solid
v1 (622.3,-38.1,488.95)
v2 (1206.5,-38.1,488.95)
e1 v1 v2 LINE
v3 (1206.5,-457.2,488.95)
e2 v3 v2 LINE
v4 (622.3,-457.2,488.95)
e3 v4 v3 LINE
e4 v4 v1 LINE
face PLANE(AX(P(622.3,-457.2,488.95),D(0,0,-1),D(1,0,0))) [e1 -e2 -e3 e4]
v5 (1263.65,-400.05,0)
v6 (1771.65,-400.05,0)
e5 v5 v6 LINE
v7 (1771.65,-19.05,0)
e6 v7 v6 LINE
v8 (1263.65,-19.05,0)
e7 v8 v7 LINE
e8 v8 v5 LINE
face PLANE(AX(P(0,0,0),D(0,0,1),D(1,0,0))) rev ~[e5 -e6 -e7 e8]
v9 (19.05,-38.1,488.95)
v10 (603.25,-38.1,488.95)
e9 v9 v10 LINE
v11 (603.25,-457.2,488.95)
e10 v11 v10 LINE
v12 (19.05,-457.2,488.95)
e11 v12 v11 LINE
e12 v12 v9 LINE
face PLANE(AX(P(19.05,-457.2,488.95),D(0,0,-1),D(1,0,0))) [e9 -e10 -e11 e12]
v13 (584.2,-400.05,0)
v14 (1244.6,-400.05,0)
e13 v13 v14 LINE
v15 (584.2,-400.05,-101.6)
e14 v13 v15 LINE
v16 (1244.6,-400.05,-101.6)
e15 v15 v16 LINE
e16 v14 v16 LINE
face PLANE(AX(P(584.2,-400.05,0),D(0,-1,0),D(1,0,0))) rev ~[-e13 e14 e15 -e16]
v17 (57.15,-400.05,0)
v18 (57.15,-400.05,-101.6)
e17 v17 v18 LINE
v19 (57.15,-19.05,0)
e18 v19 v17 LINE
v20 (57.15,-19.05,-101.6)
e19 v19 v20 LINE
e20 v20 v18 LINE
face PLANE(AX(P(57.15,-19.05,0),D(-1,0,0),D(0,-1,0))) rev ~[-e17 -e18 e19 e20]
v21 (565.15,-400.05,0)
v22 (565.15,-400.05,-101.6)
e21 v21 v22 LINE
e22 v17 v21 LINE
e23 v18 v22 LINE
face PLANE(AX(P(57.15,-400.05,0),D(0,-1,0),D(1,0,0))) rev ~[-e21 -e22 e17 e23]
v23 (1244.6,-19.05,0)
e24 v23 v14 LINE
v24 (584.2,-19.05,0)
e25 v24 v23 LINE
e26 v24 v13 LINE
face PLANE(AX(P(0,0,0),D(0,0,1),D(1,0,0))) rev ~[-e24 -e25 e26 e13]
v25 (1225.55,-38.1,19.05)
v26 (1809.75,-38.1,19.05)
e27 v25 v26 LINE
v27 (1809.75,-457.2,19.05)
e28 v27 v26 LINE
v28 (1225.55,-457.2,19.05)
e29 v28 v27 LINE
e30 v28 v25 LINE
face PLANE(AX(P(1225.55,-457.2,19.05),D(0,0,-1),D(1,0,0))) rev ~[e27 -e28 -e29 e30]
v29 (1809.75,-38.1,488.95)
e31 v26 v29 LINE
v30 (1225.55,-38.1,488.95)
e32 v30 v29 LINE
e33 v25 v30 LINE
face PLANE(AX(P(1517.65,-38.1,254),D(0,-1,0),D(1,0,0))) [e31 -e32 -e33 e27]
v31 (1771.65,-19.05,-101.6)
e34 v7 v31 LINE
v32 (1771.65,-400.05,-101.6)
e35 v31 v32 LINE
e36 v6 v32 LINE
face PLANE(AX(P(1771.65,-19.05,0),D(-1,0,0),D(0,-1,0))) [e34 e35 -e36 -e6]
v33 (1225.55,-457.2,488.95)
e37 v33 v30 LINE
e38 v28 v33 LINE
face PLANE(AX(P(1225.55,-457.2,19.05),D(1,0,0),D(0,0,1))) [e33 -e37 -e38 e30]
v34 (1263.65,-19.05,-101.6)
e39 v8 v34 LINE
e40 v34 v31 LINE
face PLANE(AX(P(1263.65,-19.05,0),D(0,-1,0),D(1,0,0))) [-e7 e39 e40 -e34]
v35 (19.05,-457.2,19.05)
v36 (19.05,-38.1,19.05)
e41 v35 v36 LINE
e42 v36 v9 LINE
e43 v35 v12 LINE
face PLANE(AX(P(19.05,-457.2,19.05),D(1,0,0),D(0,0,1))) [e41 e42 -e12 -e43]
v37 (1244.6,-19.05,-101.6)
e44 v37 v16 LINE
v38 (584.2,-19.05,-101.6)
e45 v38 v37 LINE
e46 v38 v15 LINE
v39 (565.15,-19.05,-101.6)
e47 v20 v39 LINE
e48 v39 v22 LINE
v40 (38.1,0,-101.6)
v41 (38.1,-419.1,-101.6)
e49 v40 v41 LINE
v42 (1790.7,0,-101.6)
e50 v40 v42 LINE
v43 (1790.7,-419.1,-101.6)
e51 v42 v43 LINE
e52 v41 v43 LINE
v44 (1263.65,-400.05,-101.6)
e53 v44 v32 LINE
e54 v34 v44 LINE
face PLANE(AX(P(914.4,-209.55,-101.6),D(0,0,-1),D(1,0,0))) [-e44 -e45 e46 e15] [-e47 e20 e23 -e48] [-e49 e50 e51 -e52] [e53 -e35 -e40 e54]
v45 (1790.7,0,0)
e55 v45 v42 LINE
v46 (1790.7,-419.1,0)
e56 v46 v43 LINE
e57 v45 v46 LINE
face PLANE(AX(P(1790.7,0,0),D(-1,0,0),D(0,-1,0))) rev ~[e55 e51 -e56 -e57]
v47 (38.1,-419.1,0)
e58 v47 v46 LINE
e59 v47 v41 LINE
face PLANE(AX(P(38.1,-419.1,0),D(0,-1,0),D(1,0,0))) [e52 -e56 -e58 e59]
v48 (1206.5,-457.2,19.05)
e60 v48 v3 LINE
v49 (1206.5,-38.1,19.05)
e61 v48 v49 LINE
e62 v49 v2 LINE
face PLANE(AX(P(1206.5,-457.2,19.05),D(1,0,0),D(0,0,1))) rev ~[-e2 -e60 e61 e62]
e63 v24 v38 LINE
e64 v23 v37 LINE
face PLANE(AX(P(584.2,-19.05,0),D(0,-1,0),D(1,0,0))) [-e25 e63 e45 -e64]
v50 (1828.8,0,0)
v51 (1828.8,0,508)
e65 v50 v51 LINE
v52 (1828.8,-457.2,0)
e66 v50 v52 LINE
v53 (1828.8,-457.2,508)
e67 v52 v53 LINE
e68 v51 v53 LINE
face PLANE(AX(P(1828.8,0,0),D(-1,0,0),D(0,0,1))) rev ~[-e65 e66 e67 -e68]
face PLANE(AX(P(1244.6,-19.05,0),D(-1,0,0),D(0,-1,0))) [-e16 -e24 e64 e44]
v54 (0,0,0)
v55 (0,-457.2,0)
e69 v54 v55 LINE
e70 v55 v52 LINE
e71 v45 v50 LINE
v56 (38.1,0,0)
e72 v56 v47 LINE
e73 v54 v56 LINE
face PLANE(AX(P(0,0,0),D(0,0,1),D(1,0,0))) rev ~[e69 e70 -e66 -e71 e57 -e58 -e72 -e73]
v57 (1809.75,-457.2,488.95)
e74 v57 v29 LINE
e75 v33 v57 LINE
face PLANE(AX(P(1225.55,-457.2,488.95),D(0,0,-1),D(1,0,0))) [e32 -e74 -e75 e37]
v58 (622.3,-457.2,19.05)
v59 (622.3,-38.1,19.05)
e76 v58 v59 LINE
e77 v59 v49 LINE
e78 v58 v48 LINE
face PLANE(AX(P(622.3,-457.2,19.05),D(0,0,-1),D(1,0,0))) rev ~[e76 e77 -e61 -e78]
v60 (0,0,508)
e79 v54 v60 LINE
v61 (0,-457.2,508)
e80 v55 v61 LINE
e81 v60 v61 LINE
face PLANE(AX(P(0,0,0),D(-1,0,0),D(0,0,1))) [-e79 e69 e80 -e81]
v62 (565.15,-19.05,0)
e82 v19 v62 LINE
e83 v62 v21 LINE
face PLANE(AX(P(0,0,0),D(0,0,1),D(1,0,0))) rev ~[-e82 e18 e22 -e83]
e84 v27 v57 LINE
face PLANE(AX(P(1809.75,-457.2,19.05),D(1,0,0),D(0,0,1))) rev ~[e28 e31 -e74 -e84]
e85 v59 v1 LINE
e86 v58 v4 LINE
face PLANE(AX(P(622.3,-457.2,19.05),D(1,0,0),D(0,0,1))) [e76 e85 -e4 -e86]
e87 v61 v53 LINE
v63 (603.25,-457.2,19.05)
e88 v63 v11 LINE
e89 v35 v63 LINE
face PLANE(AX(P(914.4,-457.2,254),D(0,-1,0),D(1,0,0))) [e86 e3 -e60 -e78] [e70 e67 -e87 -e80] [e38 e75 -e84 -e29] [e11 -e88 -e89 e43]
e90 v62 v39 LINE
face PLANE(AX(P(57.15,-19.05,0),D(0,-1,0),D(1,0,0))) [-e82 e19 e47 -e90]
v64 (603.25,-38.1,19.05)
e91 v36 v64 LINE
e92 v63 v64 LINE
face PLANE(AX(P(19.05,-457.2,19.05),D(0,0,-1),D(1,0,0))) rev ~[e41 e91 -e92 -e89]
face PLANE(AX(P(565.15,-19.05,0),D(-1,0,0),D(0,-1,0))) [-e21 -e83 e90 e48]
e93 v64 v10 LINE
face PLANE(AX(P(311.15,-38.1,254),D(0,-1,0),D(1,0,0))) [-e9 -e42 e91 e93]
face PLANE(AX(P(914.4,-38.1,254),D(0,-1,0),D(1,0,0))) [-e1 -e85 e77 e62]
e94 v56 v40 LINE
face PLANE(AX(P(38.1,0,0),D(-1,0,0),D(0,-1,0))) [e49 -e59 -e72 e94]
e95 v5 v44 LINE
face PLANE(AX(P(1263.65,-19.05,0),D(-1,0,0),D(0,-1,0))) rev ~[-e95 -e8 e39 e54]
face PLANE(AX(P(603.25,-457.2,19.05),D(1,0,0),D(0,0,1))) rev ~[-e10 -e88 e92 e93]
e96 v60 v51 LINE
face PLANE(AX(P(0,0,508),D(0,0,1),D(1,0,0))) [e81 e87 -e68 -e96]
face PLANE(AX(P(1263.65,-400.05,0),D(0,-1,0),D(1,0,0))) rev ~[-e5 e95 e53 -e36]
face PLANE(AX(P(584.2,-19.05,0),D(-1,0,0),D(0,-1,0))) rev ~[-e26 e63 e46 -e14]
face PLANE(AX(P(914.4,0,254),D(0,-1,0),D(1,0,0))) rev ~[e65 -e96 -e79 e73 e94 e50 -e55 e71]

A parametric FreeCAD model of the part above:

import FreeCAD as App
import Part
import Sketcher

V = App.Vector
Q = App.Units.Quantity

doc = App.newDocument("Part")
body = doc.addObject("PartDesign::Body", "Body")

# Sketch on XZ plane
sketch1 = body.newObject("Sketcher::SketchObject", "Sketch")
sketch1.AttachmentSupport = (doc.getObject("XZ_Plane"), [""])
sketch1.MapMode = "FlatFace"
sketch1.addGeometry([
    Part.LineSegment(V(0, 508, 0), V(0, 0, 0)),
    Part.LineSegment(V(0, 0, 0), V(1828.8, 0, 0)),
    Part.LineSegment(V(1828.8, 0, 0), V(1828.8, 508, 0)),
    Part.LineSegment(V(1828.8, 508, 0), V(0, 508, 0)),
], False)
sketch1.addConstraint([
    Sketcher.Constraint("Coincident", 0, 2, 1, 1),
    Sketcher.Constraint("Coincident", 1, 2, 2, 1),
    Sketcher.Constraint("Coincident", 2, 2, 3, 1),
    Sketcher.Constraint("Coincident", 3, 2, 0, 1),
    Sketcher.Constraint("Vertical", 0),
    Sketcher.Constraint("Horizontal", 1),
    Sketcher.Constraint("Vertical", 2),
    Sketcher.Constraint("Horizontal", 3),
    Sketcher.Constraint("Coincident", 0, 2, -1, 1),
    Sketcher.Constraint("DistanceX", 1, 1, 1, 2, Q("72 in")),
    Sketcher.Constraint("DistanceY", 0, 2, 0, 1, Q("20 in")),
])
pad1 = body.newObject("PartDesign::Pad", "Pad")
pad1.Profile = sketch1
pad1.Length = Q("18 in")

# Sketch on XZ plane
sketch2 = body.newObject("Sketcher::SketchObject", "Sketch001")
sketch2.AttachmentSupport = (doc.getObject("XZ_Plane"), [""])
sketch2.MapMode = "FlatFace"
sketch2.AttachmentOffset = App.Placement(V(0, 0, 18 * 25.4), App.Rotation())
sketch2.addGeometry([
    Part.LineSegment(V(19.05, 488.95, 0), V(19.05, 19.05, 0)),  # 0
    Part.LineSegment(V(19.05, 19.05, 0), V(603.25, 19.05, 0)),  # 1
    Part.LineSegment(V(603.25, 19.05, 0), V(603.25, 488.95, 0)),  # 2
    Part.LineSegment(V(603.25, 488.95, 0), V(19.05, 488.95, 0)),  # 3
    Part.LineSegment(V(622.3, 488.95, 0), V(622.3, 19.05, 0)),  # 4
    Part.LineSegment(V(622.3, 19.05, 0), V(1206.5, 19.05, 0)),  # 5
    Part.LineSegment(V(1206.5, 19.05, 0), V(1206.5, 488.95, 0)),  # 6
    Part.LineSegment(V(1206.5, 488.95, 0), V(622.3, 488.95, 0)),  # 7
    Part.LineSegment(V(1225.55, 488.95, 0), V(1225.55, 19.05, 0)),  # 8
    Part.LineSegment(V(1225.55, 19.05, 0), V(1809.75, 19.05, 0)),  # 9
    Part.LineSegment(V(1809.75, 19.05, 0), V(1809.75, 488.95, 0)),  # 10
    Part.LineSegment(V(1809.75, 488.95, 0), V(1225.55, 488.95, 0)),  # 11
], False)
sketch2.addConstraint([
    Sketcher.Constraint("Coincident", 0, 2, 1, 1),
    Sketcher.Constraint("Coincident", 1, 2, 2, 1),
    Sketcher.Constraint("Coincident", 2, 2, 3, 1),
    Sketcher.Constraint("Coincident", 3, 2, 0, 1),
    Sketcher.Constraint("Coincident", 4, 2, 5, 1),
    Sketcher.Constraint("Coincident", 5, 2, 6, 1),
    Sketcher.Constraint("Coincident", 6, 2, 7, 1),
    Sketcher.Constraint("Coincident", 7, 2, 4, 1),
    Sketcher.Constraint("Coincident", 8, 2, 9, 1),
    Sketcher.Constraint("Coincident", 9, 2, 10, 1),
    Sketcher.Constraint("Coincident", 10, 2, 11, 1),
    Sketcher.Constraint("Coincident", 11, 2, 8, 1),
    Sketcher.Constraint("Vertical", 0),
    Sketcher.Constraint("Horizontal", 1),
    Sketcher.Constraint("Vertical", 2),
    Sketcher.Constraint("Horizontal", 3),
    Sketcher.Constraint("Vertical", 4),
    Sketcher.Constraint("Horizontal", 5),
    Sketcher.Constraint("Vertical", 6),
    Sketcher.Constraint("Horizontal", 7),
    Sketcher.Constraint("Vertical", 8),
    Sketcher.Constraint("Horizontal", 9),
    Sketcher.Constraint("Vertical", 10),
    Sketcher.Constraint("Horizontal", 11),
    Sketcher.Constraint("Horizontal", 1, 2, 4, 2),
    Sketcher.Constraint("Horizontal", 3, 2, 6, 2),
    Sketcher.Constraint("Horizontal", 5, 2, 8, 2),
    Sketcher.Constraint("Horizontal", 7, 2, 10, 2),
    Sketcher.Constraint("Equal", 3, 5),
    Sketcher.Constraint("Equal", 7, 9),
    Sketcher.Constraint("DistanceX", 1, 1, 1, 2, Q("23 in")),
    Sketcher.Constraint("DistanceY", 0, 2, 0, 1, Q("18.5 in")),
    Sketcher.Constraint("DistanceX", -1, 1, 4, 2, Q("24.5 in")),
    Sketcher.Constraint("DistanceX", 1, 2, 8, 2, Q("24.5 in")),
    Sketcher.Constraint("DistanceX", -1, 1, 0, 2, Q("0.75 in")),
    Sketcher.Constraint("DistanceY", -1, 1, 0, 2, Q("0.75 in")),
])
pocket1 = body.newObject("PartDesign::Pocket", "Pocket")
pocket1.Profile = sketch2
pocket1.Length = Q("16.5 in")

# Sketch on XY plane
sketch3 = body.newObject("Sketcher::SketchObject", "Sketch002")
sketch3.AttachmentSupport = (doc.getObject("XY_Plane"), [""])
sketch3.MapMode = "FlatFace"
sketch3.addGeometry([
    Part.LineSegment(V(38.1, -419.1, 0), V(38.1, 0, 0)),  # 0
    Part.LineSegment(V(38.1, 0, 0), V(1790.7, 0, 0)),  # 1
    Part.LineSegment(V(1790.7, 0, 0), V(1790.7, -419.1, 0)),  # 2
    Part.LineSegment(V(1790.7, -419.1, 0), V(38.1, -419.1, 0)),  # 3
    Part.LineSegment(V(565.15, -19.05, 0), V(57.15, -19.05, 0)),  # 4
    Part.LineSegment(V(57.15, -19.05, 0), V(57.15, -400.05, 0)),  # 5
    Part.LineSegment(V(57.15, -400.05, 0), V(565.15, -400.05, 0)),  # 6
    Part.LineSegment(V(565.15, -400.05, 0), V(565.15, -19.05, 0)),  # 7
    Part.LineSegment(V(1244.6, -19.05, 0), V(584.2, -19.05, 0)),  # 8
    Part.LineSegment(V(584.2, -19.05, 0), V(584.2, -400.05, 0)),  # 9
    Part.LineSegment(V(584.2, -400.05, 0), V(1244.6, -400.05, 0)),  # 10
    Part.LineSegment(V(1244.6, -400.05, 0), V(1244.6, -19.05, 0)),  # 11
    Part.LineSegment(V(1771.65, -19.05, 0), V(1263.65, -19.05, 0)),  # 12
    Part.LineSegment(V(1263.65, -19.05, 0), V(1263.65, -400.05, 0)),  # 13
    Part.LineSegment(V(1263.65, -400.05, 0), V(1771.65, -400.05, 0)),  # 14
    Part.LineSegment(V(1771.65, -400.05, 0), V(1771.65, -19.05, 0)),  # 15
], False)
sketch3.addConstraint([
    Sketcher.Constraint("Coincident", 0, 2, 1, 1),
    Sketcher.Constraint("Coincident", 1, 2, 2, 1),
    Sketcher.Constraint("Coincident", 2, 2, 3, 1),
    Sketcher.Constraint("Coincident", 3, 2, 0, 1),
    Sketcher.Constraint("Coincident", 4, 2, 5, 1),
    Sketcher.Constraint("Coincident", 5, 2, 6, 1),
    Sketcher.Constraint("Coincident", 6, 2, 7, 1),
    Sketcher.Constraint("Coincident", 7, 2, 4, 1),
    Sketcher.Constraint("Coincident", 8, 2, 9, 1),
    Sketcher.Constraint("Coincident", 9, 2, 10, 1),
    Sketcher.Constraint("Coincident", 10, 2, 11, 1),
    Sketcher.Constraint("Coincident", 11, 2, 8, 1),
    Sketcher.Constraint("Coincident", 12, 2, 13, 1),
    Sketcher.Constraint("Coincident", 13, 2, 14, 1),
    Sketcher.Constraint("Coincident", 14, 2, 15, 1),
    Sketcher.Constraint("Coincident", 15, 2, 12, 1),
    Sketcher.Constraint("Vertical", 0),
    Sketcher.Constraint("Horizontal", 1),
    Sketcher.Constraint("Vertical", 2),
    Sketcher.Constraint("Horizontal", 3),
    Sketcher.Constraint("Horizontal", 4),
    Sketcher.Constraint("Vertical", 5),
    Sketcher.Constraint("Horizontal", 6),
    Sketcher.Constraint("Vertical", 7),
    Sketcher.Constraint("Horizontal", 8),
    Sketcher.Constraint("Vertical", 9),
    Sketcher.Constraint("Horizontal", 10),
    Sketcher.Constraint("Vertical", 11),
    Sketcher.Constraint("Horizontal", 12),
    Sketcher.Constraint("Vertical", 13),
    Sketcher.Constraint("Horizontal", 14),
    Sketcher.Constraint("Vertical", 15),
    Sketcher.Constraint("PointOnObject", 0, 2, -1),
    Sketcher.Constraint("Horizontal", 7, 2, 8, 2),
    Sketcher.Constraint("Horizontal", 6, 2, 9, 2),
    Sketcher.Constraint("Horizontal", 11, 2, 12, 2),
    Sketcher.Constraint("Horizontal", 10, 2, 13, 2),
    Sketcher.Constraint("Equal", 6, 12),
    Sketcher.Constraint("DistanceX", 1, 1, 1, 2, Q("69 in")),
    Sketcher.Constraint("DistanceX", 4, 2, 4, 1, Q("20 in")),
    Sketcher.Constraint("DistanceX", 8, 2, 8, 1, Q("26 in")),
    Sketcher.Constraint("DistanceY", 5, 2, 5, 1, Q("15 in")),
    Sketcher.Constraint("DistanceY", 0, 1, 0, 2, Q("16.5 in")),
    Sketcher.Constraint("DistanceX", -1, 1, 8, 2, Q("23 in")),
    Sketcher.Constraint("DistanceX", -1, 1, 0, 2, Q("1.5 in")),
    Sketcher.Constraint("DistanceX", -1, 1, 4, 2, Q("2.25 in")),
    Sketcher.Constraint("DistanceY", 4, 2, -1, 1, Q("0.75 in")),
    Sketcher.Constraint("DistanceX", -1, 1, 12, 2, Q("49.75 in")),
])
pad2 = body.newObject("PartDesign::Pad", "Pad001")
pad2.Profile = sketch3
pad2.Length = Q("4 in")
pad2.Reversed = True

doc.recompute()
